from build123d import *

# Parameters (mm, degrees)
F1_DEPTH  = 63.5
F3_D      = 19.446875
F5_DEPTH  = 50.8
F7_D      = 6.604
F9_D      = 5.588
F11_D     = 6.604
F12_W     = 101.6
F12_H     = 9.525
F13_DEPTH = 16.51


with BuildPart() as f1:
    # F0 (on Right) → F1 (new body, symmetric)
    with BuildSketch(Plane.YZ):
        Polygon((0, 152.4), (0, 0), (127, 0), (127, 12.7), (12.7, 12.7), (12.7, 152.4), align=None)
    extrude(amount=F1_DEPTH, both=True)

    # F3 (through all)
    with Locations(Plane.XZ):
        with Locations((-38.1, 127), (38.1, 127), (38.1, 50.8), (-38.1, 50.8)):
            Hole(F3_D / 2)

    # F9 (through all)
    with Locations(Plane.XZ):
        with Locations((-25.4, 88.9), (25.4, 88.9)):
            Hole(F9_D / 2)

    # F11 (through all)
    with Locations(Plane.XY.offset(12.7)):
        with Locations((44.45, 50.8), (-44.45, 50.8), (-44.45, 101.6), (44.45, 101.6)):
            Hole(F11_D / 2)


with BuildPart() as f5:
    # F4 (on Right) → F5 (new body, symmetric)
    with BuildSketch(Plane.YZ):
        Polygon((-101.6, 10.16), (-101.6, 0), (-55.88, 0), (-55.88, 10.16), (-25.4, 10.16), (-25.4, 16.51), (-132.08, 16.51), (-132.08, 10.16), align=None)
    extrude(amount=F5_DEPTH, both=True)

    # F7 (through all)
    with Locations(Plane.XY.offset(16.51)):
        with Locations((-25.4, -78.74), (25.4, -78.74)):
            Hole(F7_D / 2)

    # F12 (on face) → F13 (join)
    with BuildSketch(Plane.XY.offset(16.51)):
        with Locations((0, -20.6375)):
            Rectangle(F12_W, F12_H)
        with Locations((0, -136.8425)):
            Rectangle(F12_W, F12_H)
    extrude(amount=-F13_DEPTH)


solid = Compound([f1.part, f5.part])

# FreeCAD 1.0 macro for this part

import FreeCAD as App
import Part
import Sketcher
from FreeCAD import Vector
Q = App.Units.Quantity

doc = App.newDocument("Part")
params = doc.addObject("Spreadsheet::Sheet", "Params")
for row, (alias, value) in enumerate([
    ("sketch1_width", "5 in"),
    ("sketch1_height", "6 in"),
    ("sketch1_width2", "4.5 in"),
    ("pad1_length", "5 in"),
    ("sketch2_diameter", "0.765625 in"),
    ("hole_diameter", "0.765625 in"),
    ("sketch3_diameter", "0.22 in"),
    ("hole2_diameter", "0.22 in"),
    ("sketch4_diameter", "0.26 in"),
    ("hole3_diameter", "0.26 in"),
    ("sketch5_width", "1.8 in"),
    ("sketch5_width2", "1.2 in"),
    ("sketch5_height", "0.4 in"),
    ("sketch5_height2", "0.25 in"),
    ("pad2_length", "4 in"),
    ("sketch6_diameter", "0.26 in"),
    ("hole4_diameter", "0.26 in"),
    ("sketch7_width", "4 in"),
    ("sketch7_height", "0.375 in"),
    ("pad3_length", "0.65 in"),
], start=1):
    params.set(f"A{row}", alias)
    params.set(f"B{row}", "=" + value)
    params.setAlias(f"B{row}", alias)

body = doc.addObject("PartDesign::Body", "Body")

# Sketch on YZ plane
sketch1 = doc.addObject("Sketcher::SketchObject", "Sketch")
body.addObject(sketch1)
sketch1.AttachmentSupport = (doc.YZ_Plane, [""])
sketch1.MapMode = "FlatFace"
sketch1.addGeometry([
    Part.LineSegment(Vector(0, 152.4, 0), Vector(0, 0, 0)),  # 0
    Part.LineSegment(Vector(0, 0, 0), Vector(127, 0, 0)),  # 1
    Part.LineSegment(Vector(127, 0, 0), Vector(127, 12.7, 0)),  # 2
    Part.LineSegment(Vector(127, 12.7, 0), Vector(12.7, 12.7, 0)),  # 3
    Part.LineSegment(Vector(12.7, 12.7, 0), Vector(12.7, 152.4, 0)),  # 4
    Part.LineSegment(Vector(12.7, 152.4, 0), Vector(0, 152.4, 0)),  # 5
], False)
sketch1.addConstraint([
    Sketcher.Constraint("Coincident", 0, 2, 1, 1),
    Sketcher.Constraint("Coincident", 1, 2, 2, 1),
    Sketcher.Constraint("Coincident", 2, 2, 3, 1),
    Sketcher.Constraint("Coincident", 3, 2, 4, 1),
    Sketcher.Constraint("Coincident", 4, 2, 5, 1),
    Sketcher.Constraint("Coincident", 5, 2, 0, 1),
    Sketcher.Constraint("Vertical", 0),
    Sketcher.Constraint("Horizontal", 1),
    Sketcher.Constraint("Vertical", 2),
    Sketcher.Constraint("Horizontal", 3),
    Sketcher.Constraint("Vertical", 4),
    Sketcher.Constraint("Horizontal", 5),
    Sketcher.Constraint("Coincident", 0, 2, -1, 1),
    Sketcher.Constraint("Equal", 5, 2),
    Sketcher.Constraint("DistanceX", 1, 1, 1, 2, Q("5 in")),
    Sketcher.Constraint("DistanceY", 0, 2, 0, 1, Q("6 in")),
    Sketcher.Constraint("DistanceX", 3, 2, 3, 1, Q("4.5 in")),
])
sketch1.setExpression("Constraints[14]", "Params.sketch1_width")
sketch1.setExpression("Constraints[15]", "Params.sketch1_height")
sketch1.setExpression("Constraints[16]", "Params.sketch1_width2")
pad1 = doc.addObject("PartDesign::Pad", "Pad")
body.addObject(pad1)
pad1.Profile = sketch1
pad1.setExpression("Length", "Params.pad1_length")
pad1.Midplane = True

# Sketch on XZ plane
sketch2 = doc.addObject("Sketcher::SketchObject", "Sketch001")
body.addObject(sketch2)
sketch2.AttachmentSupport = (doc.XZ_Plane, [""])
sketch2.MapMode = "FlatFace"
sketch2.addGeometry([
    Part.Circle(Vector(-38.1, 127, 0), Vector(0, 0, 1), 9.723437),
    Part.Circle(Vector(38.1, 127, 0), Vector(0, 0, 1), 9.723437),
    Part.Circle(Vector(38.1, 50.8, 0), Vector(0, 0, 1), 9.723437),
    Part.Circle(Vector(-38.1, 50.8, 0), Vector(0, 0, 1), 9.723437),
], False)
sketch2.addConstraint([
    Sketcher.Constraint("Equal", 0, 1),
    Sketcher.Constraint("Equal", 1, 2),
    Sketcher.Constraint("Equal", 2, 3),
    Sketcher.Constraint("Symmetric", 0, 3, 1, 3, -2),
    Sketcher.Constraint("Symmetric", 2, 3, 3, 3, -2),
    Sketcher.Constraint("Vertical", 1, 3, 2, 3),
    Sketcher.Constraint("Diameter", 0, Q("0.765625 in")),
    Sketcher.Constraint("DistanceY", -1, 1, 0, 3, Q("5 in")),
    Sketcher.Constraint("DistanceY", -1, 1, 2, 3, Q("2 in")),
    Sketcher.Constraint("DistanceX", 0, 3, 1, 3, Q("3 in")),
])
sketch2.setExpression("Constraints[6]", "Params.sketch2_diameter")
doc.recompute()
hole = doc.addObject("PartDesign::Hole", "Hole")
body.addObject(hole)
hole.Profile = sketch2
hole.ThreadType = "None"
hole.setExpression("Diameter", "Params.hole_diameter")
hole.DepthType = "ThroughAll"

# Sketch on XZ plane
sketch3 = doc.addObject("Sketcher::SketchObject", "Sketch002")
body.addObject(sketch3)
sketch3.AttachmentSupport = (doc.XZ_Plane, [""])
sketch3.MapMode = "FlatFace"
sketch3.addGeometry([
    Part.Circle(Vector(-25.4, 88.9, 0), Vector(0, 0, 1), 2.794),
    Part.Circle(Vector(25.4, 88.9, 0), Vector(0, 0, 1), 2.794),
], False)
sketch3.addConstraint([
    Sketcher.Constraint("Equal", 0, 1),
    Sketcher.Constraint("Symmetric", 0, 3, 1, 3, -2),
    Sketcher.Constraint("Diameter", 0, Q("0.22 in")),
    Sketcher.Constraint("DistanceX", 0, 3, -1, 1, Q("1 in")),
    Sketcher.Constraint("DistanceY", -1, 1, 0, 3, Q("3.5 in")),
])
sketch3.setExpression("Constraints[2]", "Params.sketch3_diameter")
doc.recompute()
hole2 = doc.addObject("PartDesign::Hole", "Hole001")
body.addObject(hole2)
hole2.Profile = sketch3
hole2.ThreadType = "None"
hole2.setExpression("Diameter", "Params.hole2_diameter")
hole2.DepthType = "ThroughAll"

# Sketch on XY plane
sketch4 = doc.addObject("Sketcher::SketchObject", "Sketch003")
body.addObject(sketch4)
sketch4.AttachmentSupport = (doc.XY_Plane, [""])
sketch4.MapMode = "FlatFace"
sketch4.AttachmentOffset = App.Placement(Vector(0, 0, 0.5 * 25.4), App.Rotation())
sketch4.addGeometry([
    Part.Circle(Vector(44.45, 50.8, 0), Vector(0, 0, 1), 3.302),
    Part.Circle(Vector(-44.45, 50.8, 0), Vector(0, 0, 1), 3.302),
    Part.Circle(Vector(-44.45, 101.6, 0), Vector(0, 0, 1), 3.302),
    Part.Circle(Vector(44.45, 101.6, 0), Vector(0, 0, 1), 3.302),
], False)
sketch4.addConstraint([
    Sketcher.Constraint("Equal", 0, 1),
    Sketcher.Constraint("Equal", 1, 2),
    Sketcher.Constraint("Equal", 2, 3),
    Sketcher.Constraint("Symmetric", 0, 3, 1, 3, -2),
    Sketcher.Constraint("Symmetric", 2, 3, 3, 3, -2),
    Sketcher.Constraint("Vertical", 1, 3, 2, 3),
    Sketcher.Constraint("Diameter", 0, Q("0.26 in")),
    Sketcher.Constraint("DistanceY", -1, 1, 0, 3, Q("2 in")),
    Sketcher.Constraint("DistanceY", -1, 1, 2, 3, Q("4 in")),
    Sketcher.Constraint("DistanceX", 1, 3, 0, 3, Q("3.5 in")),
])
sketch4.setExpression("Constraints[6]", "Params.sketch4_diameter")
doc.recompute()
hole3 = doc.addObject("PartDesign::Hole", "Hole002")
body.addObject(hole3)
hole3.Profile = sketch4
hole3.ThreadType = "None"
hole3.setExpression("Diameter", "Params.hole3_diameter")
hole3.DepthType = "ThroughAll"
body2 = doc.addObject("PartDesign::Body", "Body001")

# Sketch on YZ plane
sketch5 = doc.addObject("Sketcher::SketchObject", "Sketch004")
body2.addObject(sketch5)
sketch5.AttachmentSupport = (doc.getObject("YZ_Plane001"), [""])
sketch5.MapMode = "FlatFace"
sketch5.addGeometry([
    Part.LineSegment(Vector(-101.6, 10.16, 0), Vector(-101.6, 0, 0)),  # 0
    Part.LineSegment(Vector(-101.6, 0, 0), Vector(-55.88, 0, 0)),  # 1
    Part.LineSegment(Vector(-55.88, 0, 0), Vector(-55.88, 10.16, 0)),  # 2
    Part.LineSegment(Vector(-55.88, 10.16, 0), Vector(-25.4, 10.16, 0)),  # 3
    Part.LineSegment(Vector(-25.4, 10.16, 0), Vector(-25.4, 16.51, 0)),  # 4
    Part.LineSegment(Vector(-25.4, 16.51, 0), Vector(-132.08, 16.51, 0)),  # 5
    Part.LineSegment(Vector(-132.08, 16.51, 0), Vector(-132.08, 10.16, 0)),  # 6
    Part.LineSegment(Vector(-132.08, 10.16, 0), Vector(-101.6, 10.16, 0)),  # 7
], False)
sketch5.addConstraint([
    Sketcher.Constraint("Coincident", 0, 2, 1, 1),
    Sketcher.Constraint("Coincident", 1, 2, 2, 1),
    Sketcher.Constraint("Coincident", 2, 2, 3, 1),
    Sketcher.Constraint("Coincident", 3, 2, 4, 1),
    Sketcher.Constraint("Coincident", 4, 2, 5, 1),
    Sketcher.Constraint("Coincident", 5, 2, 6, 1),
    Sketcher.Constraint("Coincident", 6, 2, 7, 1),
    Sketcher.Constraint("Coincident", 7, 2, 0, 1),
    Sketcher.Constraint("Vertical", 0),
    Sketcher.Constraint("Horizontal", 1),
    Sketcher.Constraint("Vertical", 2),
    Sketcher.Constraint("Horizontal", 3),
    Sketcher.Constraint("Vertical", 4),
    Sketcher.Constraint("Horizontal", 5),
    Sketcher.Constraint("Vertical", 6),
    Sketcher.Constraint("Horizontal", 7),
    Sketcher.Constraint("PointOnObject", 0, 2, -1),
    Sketcher.Constraint("Horizontal", 3, 2, 6, 2),
    Sketcher.Constraint("Equal", 3, 7),
    Sketcher.Constraint("DistanceX", 1, 1, 1, 2, Q("1.8 in")),
    Sketcher.Constraint("DistanceX", 3, 1, 3, 2, Q("1.2 in")),
    Sketcher.Constraint("DistanceY", 0, 2, 0, 1, Q("0.4 in")),
    Sketcher.Constraint("DistanceX", 0, 2, -1, 1, Q("4 in")),
    Sketcher.Constraint("DistanceY", 4, 1, 4, 2, Q("0.25 in")),
])
sketch5.setExpression("Constraints[19]", "Params.sketch5_width")
sketch5.setExpression("Constraints[20]", "Params.sketch5_width2")
sketch5.setExpression("Constraints[21]", "Params.sketch5_height")
sketch5.setExpression("Constraints[23]", "Params.sketch5_height2")
pad2 = doc.addObject("PartDesign::Pad", "Pad001")
body2.addObject(pad2)
pad2.Profile = sketch5
pad2.setExpression("Length", "Params.pad2_length")
pad2.Midplane = True

# Sketch on XY plane
sketch6 = doc.addObject("Sketcher::SketchObject", "Sketch005")
body2.addObject(sketch6)
sketch6.AttachmentSupport = (doc.getObject("XY_Plane001"), [""])
sketch6.MapMode = "FlatFace"
sketch6.AttachmentOffset = App.Placement(Vector(0, 0, 0.65 * 25.4), App.Rotation())
sketch6.addGeometry([
    Part.Circle(Vector(-25.4, -78.74, 0), Vector(0, 0, 1), 3.302),
    Part.Circle(Vector(25.4, -78.74, 0), Vector(0, 0, 1), 3.302),
], False)
sketch6.addConstraint([
    Sketcher.Constraint("Equal", 0, 1),
    Sketcher.Constraint("Symmetric", 0, 3, 1, 3, -2),
    Sketcher.Constraint("Diameter", 0, Q("0.26 in")),
    Sketcher.Constraint("DistanceX", 0, 3, -1, 1, Q("1 in")),
    Sketcher.Constraint("DistanceY", 0, 3, -1, 1, Q("3.1 in")),
])
sketch6.setExpression("Constraints[2]", "Params.sketch6_diameter")
doc.recompute()
hole4 = doc.addObject("PartDesign::Hole", "Hole003")
body2.addObject(hole4)
hole4.Profile = sketch6
hole4.ThreadType = "None"
hole4.setExpression("Diameter", "Params.hole4_diameter")
hole4.DepthType = "ThroughAll"

# Sketch on XY plane
sketch7 = doc.addObject("Sketcher::SketchObject", "Sketch006")
body2.addObject(sketch7)
sketch7.AttachmentSupport = (doc.getObject("XY_Plane001"), [""])
sketch7.MapMode = "FlatFace"
sketch7.AttachmentOffset = App.Placement(Vector(0, 0, 0.65 * 25.4), App.Rotation())
sketch7.addGeometry([
    Part.LineSegment(Vector(-50.8, -15.875, 0), Vector(-50.8, -25.4, 0)),  # 0
    Part.LineSegment(Vector(-50.8, -25.4, 0), Vector(50.8, -25.4, 0)),  # 1
    Part.LineSegment(Vector(50.8, -25.4, 0), Vector(50.8, -15.875, 0)),  # 2
    Part.LineSegment(Vector(50.8, -15.875, 0), Vector(-50.8, -15.875, 0)),  # 3
    Part.LineSegment(Vector(-50.8, -132.08, 0), Vector(-50.8, -141.605, 0)),  # 4
    Part.LineSegment(Vector(-50.8, -141.605, 0), Vector(50.8, -141.605, 0)),  # 5
    Part.LineSegment(Vector(50.8, -141.605, 0), Vector(50.8, -132.08, 0)),  # 6
    Part.LineSegment(Vector(50.8, -132.08, 0), Vector(-50.8, -132.08, 0)),  # 7
], False)
sketch7.addConstraint([
    Sketcher.Constraint("Coincident", 0, 2, 1, 1),
    Sketcher.Constraint("Coincident", 1, 2, 2, 1),
    Sketcher.Constraint("Coincident", 2, 2, 3, 1),
    Sketcher.Constraint("Coincident", 3, 2, 0, 1),
    Sketcher.Constraint("Coincident", 4, 2, 5, 1),
    Sketcher.Constraint("Coincident", 5, 2, 6, 1),
    Sketcher.Constraint("Coincident", 6, 2, 7, 1),
    Sketcher.Constraint("Coincident", 7, 2, 4, 1),
    Sketcher.Constraint("Vertical", 0),
    Sketcher.Constraint("Horizontal", 1),
    Sketcher.Constraint("Vertical", 2),
    Sketcher.Constraint("Horizontal", 3),
    Sketcher.Constraint("Vertical", 4),
    Sketcher.Constraint("Horizontal", 5),
    Sketcher.Constraint("Vertical", 6),
    Sketcher.Constraint("Horizontal", 7),
    Sketcher.Constraint("Vertical", 3, 2, 4, 2),
    Sketcher.Constraint("Vertical", 2, 2, 5, 2),
    Sketcher.Constraint("Equal", 2, 4),
    Sketcher.Constraint("DistanceX", 1, 1, 1, 2, Q("4 in")),
    Sketcher.Constraint("DistanceX", 0, 2, -1, 1, Q("2 in")),
    Sketcher.Constraint("DistanceY", 0, 2, -1, 1, Q("1 in")),
    Sketcher.Constraint("DistanceY", 6, 2, -1, 1, Q("5.2 in")),
    Sketcher.Constraint("DistanceY", 0, 2, 0, 1, Q("0.375 in")),
])
sketch7.setExpression("Constraints[19]", "Params.sketch7_width")
sketch7.setExpression("Constraints[23]", "Params.sketch7_height")
pad3 = doc.addObject("PartDesign::Pad", "Pad002")
body2.addObject(pad3)
pad3.Profile = sketch7
pad3.setExpression("Length", "Params.pad3_length")
pad3.Reversed = True

doc.recompute()
